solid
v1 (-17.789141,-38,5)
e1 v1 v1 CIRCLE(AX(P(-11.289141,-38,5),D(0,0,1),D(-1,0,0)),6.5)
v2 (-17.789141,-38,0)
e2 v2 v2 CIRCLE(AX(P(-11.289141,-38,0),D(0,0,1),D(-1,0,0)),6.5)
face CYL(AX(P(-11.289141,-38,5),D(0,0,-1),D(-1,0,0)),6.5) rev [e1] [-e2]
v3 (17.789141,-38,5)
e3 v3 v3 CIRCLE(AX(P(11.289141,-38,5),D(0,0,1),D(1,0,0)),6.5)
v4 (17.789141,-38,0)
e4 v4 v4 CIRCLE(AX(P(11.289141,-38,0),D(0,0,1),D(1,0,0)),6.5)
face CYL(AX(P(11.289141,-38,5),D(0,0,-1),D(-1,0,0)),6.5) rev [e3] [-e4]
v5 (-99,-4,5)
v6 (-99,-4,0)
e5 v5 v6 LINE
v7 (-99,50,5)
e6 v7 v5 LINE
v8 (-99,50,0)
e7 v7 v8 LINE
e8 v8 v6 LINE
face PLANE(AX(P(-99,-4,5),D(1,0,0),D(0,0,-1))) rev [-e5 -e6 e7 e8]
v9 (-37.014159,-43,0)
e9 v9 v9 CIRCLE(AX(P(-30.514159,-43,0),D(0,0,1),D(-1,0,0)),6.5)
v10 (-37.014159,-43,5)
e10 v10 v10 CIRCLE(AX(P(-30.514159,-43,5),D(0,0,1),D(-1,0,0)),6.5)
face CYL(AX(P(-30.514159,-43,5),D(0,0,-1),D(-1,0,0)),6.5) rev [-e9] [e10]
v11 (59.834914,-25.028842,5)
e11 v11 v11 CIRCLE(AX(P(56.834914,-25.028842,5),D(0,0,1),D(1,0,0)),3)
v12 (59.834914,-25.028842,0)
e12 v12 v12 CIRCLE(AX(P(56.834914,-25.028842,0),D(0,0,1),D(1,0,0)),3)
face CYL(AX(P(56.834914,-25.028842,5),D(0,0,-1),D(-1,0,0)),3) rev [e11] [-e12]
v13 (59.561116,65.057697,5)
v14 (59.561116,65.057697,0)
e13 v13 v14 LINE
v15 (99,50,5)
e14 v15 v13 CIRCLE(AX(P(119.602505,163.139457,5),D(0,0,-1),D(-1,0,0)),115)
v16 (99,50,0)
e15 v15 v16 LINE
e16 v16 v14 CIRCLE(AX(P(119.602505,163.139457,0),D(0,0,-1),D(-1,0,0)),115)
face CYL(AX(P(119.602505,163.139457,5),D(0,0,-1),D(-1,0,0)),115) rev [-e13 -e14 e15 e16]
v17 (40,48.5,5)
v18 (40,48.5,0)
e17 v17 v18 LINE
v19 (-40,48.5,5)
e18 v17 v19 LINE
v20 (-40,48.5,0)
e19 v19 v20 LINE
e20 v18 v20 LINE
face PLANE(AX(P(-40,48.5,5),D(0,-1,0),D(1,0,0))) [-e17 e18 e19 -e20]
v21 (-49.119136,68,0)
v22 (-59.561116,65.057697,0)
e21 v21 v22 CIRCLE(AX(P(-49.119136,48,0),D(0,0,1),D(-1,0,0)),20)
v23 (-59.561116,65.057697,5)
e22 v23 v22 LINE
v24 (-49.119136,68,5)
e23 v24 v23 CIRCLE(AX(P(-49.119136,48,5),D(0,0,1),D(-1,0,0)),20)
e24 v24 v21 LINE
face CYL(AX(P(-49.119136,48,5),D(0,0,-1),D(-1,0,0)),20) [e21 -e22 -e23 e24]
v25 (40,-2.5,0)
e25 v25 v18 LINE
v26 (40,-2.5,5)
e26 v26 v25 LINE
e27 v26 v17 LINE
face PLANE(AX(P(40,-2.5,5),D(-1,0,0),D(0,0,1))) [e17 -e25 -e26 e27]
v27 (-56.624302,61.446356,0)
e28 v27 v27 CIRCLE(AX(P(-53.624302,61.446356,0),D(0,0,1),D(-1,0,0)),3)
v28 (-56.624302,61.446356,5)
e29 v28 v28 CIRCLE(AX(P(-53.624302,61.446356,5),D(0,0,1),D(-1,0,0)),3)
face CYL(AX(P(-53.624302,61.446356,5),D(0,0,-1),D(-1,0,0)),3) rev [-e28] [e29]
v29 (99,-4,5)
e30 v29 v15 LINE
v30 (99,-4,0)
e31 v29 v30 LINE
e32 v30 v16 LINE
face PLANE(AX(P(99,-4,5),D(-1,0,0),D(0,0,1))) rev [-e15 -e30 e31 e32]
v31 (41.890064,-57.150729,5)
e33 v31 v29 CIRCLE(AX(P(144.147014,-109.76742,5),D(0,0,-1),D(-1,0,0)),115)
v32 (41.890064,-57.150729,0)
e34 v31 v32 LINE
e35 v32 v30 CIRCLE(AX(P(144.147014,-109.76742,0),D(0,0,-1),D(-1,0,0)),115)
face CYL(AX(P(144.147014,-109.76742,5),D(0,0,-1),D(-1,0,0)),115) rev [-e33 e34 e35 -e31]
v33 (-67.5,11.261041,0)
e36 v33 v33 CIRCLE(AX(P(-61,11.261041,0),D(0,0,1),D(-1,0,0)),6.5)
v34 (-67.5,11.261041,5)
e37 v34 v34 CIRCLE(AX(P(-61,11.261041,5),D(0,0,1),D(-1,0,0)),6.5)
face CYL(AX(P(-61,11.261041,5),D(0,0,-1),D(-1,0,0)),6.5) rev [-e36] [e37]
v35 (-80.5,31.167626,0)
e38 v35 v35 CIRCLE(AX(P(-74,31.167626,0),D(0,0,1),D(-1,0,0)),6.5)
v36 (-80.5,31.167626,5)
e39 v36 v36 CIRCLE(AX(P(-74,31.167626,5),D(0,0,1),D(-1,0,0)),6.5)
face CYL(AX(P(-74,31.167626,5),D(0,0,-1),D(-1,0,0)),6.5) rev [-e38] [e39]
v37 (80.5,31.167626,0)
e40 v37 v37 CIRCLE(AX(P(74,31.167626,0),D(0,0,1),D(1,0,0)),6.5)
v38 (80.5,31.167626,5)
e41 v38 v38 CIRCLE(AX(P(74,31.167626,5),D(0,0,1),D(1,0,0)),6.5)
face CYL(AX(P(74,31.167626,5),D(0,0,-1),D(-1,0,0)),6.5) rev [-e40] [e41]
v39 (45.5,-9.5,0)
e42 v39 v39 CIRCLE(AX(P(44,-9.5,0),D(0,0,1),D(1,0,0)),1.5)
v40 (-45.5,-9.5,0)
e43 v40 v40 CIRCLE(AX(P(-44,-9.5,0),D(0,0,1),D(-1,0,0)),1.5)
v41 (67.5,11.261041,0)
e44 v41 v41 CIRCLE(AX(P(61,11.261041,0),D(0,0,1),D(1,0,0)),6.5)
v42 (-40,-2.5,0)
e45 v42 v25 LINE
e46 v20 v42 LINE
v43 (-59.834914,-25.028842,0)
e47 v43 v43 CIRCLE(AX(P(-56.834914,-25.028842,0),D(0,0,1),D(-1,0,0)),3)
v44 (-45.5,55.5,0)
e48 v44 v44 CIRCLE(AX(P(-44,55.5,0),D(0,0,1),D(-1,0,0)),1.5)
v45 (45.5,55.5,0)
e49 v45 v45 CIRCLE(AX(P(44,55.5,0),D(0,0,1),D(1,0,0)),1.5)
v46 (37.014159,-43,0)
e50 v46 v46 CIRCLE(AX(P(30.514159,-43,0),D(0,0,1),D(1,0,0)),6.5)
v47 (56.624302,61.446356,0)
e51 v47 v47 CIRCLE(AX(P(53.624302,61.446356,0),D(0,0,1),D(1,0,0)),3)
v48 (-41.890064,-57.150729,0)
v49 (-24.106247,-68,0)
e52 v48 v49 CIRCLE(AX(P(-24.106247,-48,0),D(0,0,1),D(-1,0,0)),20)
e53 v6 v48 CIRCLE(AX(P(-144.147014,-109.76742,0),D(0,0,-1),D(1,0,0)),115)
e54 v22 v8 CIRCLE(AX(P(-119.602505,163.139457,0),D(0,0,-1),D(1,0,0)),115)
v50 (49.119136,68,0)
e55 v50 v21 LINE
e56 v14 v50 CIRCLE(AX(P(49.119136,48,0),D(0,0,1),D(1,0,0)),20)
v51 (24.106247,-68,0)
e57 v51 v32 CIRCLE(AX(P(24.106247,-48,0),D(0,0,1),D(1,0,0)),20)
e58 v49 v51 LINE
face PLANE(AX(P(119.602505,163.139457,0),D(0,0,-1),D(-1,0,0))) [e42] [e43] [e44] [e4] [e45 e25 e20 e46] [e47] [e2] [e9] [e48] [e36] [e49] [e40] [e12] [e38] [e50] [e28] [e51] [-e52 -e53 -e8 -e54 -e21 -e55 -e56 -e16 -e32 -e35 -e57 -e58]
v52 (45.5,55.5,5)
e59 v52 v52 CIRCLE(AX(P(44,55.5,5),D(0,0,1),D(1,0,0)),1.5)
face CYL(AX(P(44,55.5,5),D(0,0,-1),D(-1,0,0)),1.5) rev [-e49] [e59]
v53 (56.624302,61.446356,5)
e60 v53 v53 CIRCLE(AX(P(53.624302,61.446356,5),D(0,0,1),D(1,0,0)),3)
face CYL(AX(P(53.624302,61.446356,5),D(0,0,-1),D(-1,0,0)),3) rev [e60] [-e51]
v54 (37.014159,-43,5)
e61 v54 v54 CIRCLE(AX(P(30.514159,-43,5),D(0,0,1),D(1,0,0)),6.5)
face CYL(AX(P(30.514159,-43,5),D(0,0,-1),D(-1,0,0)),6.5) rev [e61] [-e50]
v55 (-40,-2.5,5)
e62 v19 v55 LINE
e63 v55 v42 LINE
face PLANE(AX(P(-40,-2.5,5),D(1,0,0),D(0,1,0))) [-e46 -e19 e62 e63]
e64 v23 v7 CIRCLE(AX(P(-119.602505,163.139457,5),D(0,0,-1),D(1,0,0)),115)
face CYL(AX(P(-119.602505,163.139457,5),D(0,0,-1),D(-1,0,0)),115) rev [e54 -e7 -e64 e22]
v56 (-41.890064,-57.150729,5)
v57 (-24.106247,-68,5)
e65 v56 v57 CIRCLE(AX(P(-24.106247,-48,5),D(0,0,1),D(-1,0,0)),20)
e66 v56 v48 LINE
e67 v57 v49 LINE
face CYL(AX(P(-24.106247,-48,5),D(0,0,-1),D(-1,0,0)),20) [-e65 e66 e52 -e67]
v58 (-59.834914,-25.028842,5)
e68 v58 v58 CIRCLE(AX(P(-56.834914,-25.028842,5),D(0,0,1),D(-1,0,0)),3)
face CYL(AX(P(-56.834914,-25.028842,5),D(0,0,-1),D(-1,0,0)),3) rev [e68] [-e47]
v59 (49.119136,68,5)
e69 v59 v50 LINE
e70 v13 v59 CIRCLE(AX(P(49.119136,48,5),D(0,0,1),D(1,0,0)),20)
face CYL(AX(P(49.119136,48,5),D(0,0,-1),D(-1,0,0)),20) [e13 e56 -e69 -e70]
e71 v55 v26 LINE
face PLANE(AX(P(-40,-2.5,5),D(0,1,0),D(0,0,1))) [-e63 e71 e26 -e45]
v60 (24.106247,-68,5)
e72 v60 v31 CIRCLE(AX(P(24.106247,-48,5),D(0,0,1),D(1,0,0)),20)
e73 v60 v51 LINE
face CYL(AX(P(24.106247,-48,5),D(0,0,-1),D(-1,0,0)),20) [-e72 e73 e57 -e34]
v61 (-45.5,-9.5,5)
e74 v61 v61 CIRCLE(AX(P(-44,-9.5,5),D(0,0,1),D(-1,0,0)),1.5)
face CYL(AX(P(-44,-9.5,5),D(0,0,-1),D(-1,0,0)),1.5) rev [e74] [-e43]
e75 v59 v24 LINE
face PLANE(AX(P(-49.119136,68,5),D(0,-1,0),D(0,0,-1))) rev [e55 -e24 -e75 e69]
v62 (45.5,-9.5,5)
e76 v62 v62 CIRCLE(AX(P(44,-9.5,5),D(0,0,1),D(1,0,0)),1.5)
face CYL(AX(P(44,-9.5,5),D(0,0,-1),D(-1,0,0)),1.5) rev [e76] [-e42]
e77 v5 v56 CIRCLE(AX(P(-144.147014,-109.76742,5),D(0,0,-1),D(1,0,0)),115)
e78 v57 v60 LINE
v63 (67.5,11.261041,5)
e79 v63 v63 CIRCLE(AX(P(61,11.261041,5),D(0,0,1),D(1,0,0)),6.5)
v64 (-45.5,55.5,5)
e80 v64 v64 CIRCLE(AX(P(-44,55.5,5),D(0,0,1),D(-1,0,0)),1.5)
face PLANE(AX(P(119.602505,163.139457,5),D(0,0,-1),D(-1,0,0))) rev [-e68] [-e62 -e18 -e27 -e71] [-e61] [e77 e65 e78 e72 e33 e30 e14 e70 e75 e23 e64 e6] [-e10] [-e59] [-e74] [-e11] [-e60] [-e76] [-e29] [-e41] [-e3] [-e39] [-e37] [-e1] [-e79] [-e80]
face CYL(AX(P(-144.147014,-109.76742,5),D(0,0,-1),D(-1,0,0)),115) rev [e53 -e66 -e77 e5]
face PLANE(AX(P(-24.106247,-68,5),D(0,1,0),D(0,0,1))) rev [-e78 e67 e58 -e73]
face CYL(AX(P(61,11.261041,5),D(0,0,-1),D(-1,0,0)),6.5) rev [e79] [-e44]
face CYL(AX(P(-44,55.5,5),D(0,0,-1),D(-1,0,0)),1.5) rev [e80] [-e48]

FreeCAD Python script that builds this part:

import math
import FreeCAD as App
import Part
import Sketcher


def add_polygon(sketch, points):
    """Adds a closed chain of lines whose ends are joined by coincident constraints."""
    first, n = sketch.GeometryCount, len(points)
    for a, b in zip(points, points[1:] + points[:1]):
        sketch.addGeometry(Part.LineSegment(App.Vector(*a, 0), App.Vector(*b, 0)), False)
    for i in range(n):
        sketch.addConstraint(Sketcher.Constraint("Coincident", first + i, 2, first + (i + 1) % n, 1))

doc = App.newDocument("Part")
body = doc.addObject("PartDesign::Body", "Body")

# Sketch on XY plane
sketch1 = doc.addObject("Sketcher::SketchObject", "Sketch")
body.addObject(sketch1)
sketch1.AttachmentSupport = (doc.XY_Plane, [""])
sketch1.MapMode = "FlatFace"
sketch1.addGeometry(Part.LineSegment(App.Vector(49.1, 68, 0), App.Vector(-49.1, 68, 0)), False)  # 0
sketch1.addGeometry(Part.ArcOfCircle(Part.Circle(App.Vector(-49.1, 48, 0), App.Vector(0, 0, 1), 20), math.radians(90), math.radians(121)), False)  # 1
sketch1.addGeometry(Part.ArcOfCircle(Part.Circle(App.Vector(-119.6, 163.1, 0), App.Vector(0, 0, 1), 115), math.radians(-80), math.radians(-59)), False)  # 2
sketch1.addGeometry(Part.LineSegment(App.Vector(-99, 50, 0), App.Vector(-99, -4, 0)), False)  # 3
sketch1.addGeometry(Part.ArcOfCircle(Part.Circle(App.Vector(-144.1, -109.8, 0), App.Vector(0, 0, 1), 115), math.radians(27), math.radians(67)), False)  # 4
sketch1.addGeometry(Part.ArcOfCircle(Part.Circle(App.Vector(-24.1, -48, 0), App.Vector(0, 0, 1), 20), math.radians(-153), math.radians(-90)), False)  # 5
sketch1.addGeometry(Part.LineSegment(App.Vector(-24.1, -68, 0), App.Vector(24.1, -68, 0)), False)  # 6
sketch1.addGeometry(Part.ArcOfCircle(Part.Circle(App.Vector(24.1, -48, 0), App.Vector(0, 0, 1), 20), math.radians(-90), math.radians(-27)), False)  # 7
sketch1.addGeometry(Part.ArcOfCircle(Part.Circle(App.Vector(144.1, -109.8, 0), App.Vector(0, 0, 1), 115), math.radians(113), math.radians(153)), False)  # 8
sketch1.addGeometry(Part.LineSegment(App.Vector(99, -4, 0), App.Vector(99, 50, 0)), False)  # 9
sketch1.addGeometry(Part.ArcOfCircle(Part.Circle(App.Vector(119.6, 163.1, 0), App.Vector(0, 0, 1), 115), math.radians(-121), math.radians(-100)), False)  # 10
sketch1.addGeometry(Part.ArcOfCircle(Part.Circle(App.Vector(49.1, 48, 0), App.Vector(0, 0, 1), 20), math.radians(59), math.radians(90)), False)  # 11
sketch1.addGeometry(Part.Circle(App.Vector(56.8, -25, 0), App.Vector(0, 0, 1), 3), False)  # 12
sketch1.addGeometry(Part.Circle(App.Vector(30.5, -43, 0), App.Vector(0, 0, 1), 6.5), False)  # 13
sketch1.addGeometry(Part.Circle(App.Vector(11.3, -38, 0), App.Vector(0, 0, 1), 6.5), False)  # 14
sketch1.addGeometry(Part.Circle(App.Vector(44, -9.5, 0), App.Vector(0, 0, 1), 1.5), False)  # 15
sketch1.addGeometry(Part.Circle(App.Vector(-11.3, -38, 0), App.Vector(0, 0, 1), 6.5), False)  # 16
sketch1.addGeometry(Part.Circle(App.Vector(-30.5, -43, 0), App.Vector(0, 0, 1), 6.5), False)  # 17
sketch1.addGeometry(Part.Circle(App.Vector(-56.8, -25, 0), App.Vector(0, 0, 1), 3), False)  # 18
sketch1.addGeometry(Part.Circle(App.Vector(-44, -9.5, 0), App.Vector(0, 0, 1), 1.5), False)  # 19
sketch1.addGeometry(Part.Circle(App.Vector(61, 11.3, 0), App.Vector(0, 0, 1), 6.5), False)  # 20
sketch1.addGeometry(Part.Circle(App.Vector(74, 31.2, 0), App.Vector(0, 0, 1), 6.5), False)  # 21
add_polygon(sketch1, [(-40, -2.5), (-40, 48.5), (40, 48.5), (40, -2.5)])  # lines 22-25
sketch1.addGeometry(Part.Circle(App.Vector(44, 55.5, 0), App.Vector(0, 0, 1), 1.5), False)  # 26
sketch1.addGeometry(Part.Circle(App.Vector(53.6, 61.4, 0), App.Vector(0, 0, 1), 3), False)  # 27
sketch1.addGeometry(Part.Circle(App.Vector(-61, 11.3, 0), App.Vector(0, 0, 1), 6.5), False)  # 28
sketch1.addGeometry(Part.Circle(App.Vector(-74, 31.2, 0), App.Vector(0, 0, 1), 6.5), False)  # 29
sketch1.addGeometry(Part.Circle(App.Vector(-44, 55.5, 0), App.Vector(0, 0, 1), 1.5), False)  # 30
sketch1.addGeometry(Part.Circle(App.Vector(-53.6, 61.4, 0), App.Vector(0, 0, 1), 3), False)  # 31
sketch1.addConstraint([
    Sketcher.Constraint("Tangent", 0, 2, 1, 1),
    Sketcher.Constraint("Tangent", 1, 2, 2, 2),
    Sketcher.Constraint("Coincident", 2, 1, 3, 1),
    Sketcher.Constraint("Coincident", 3, 2, 4, 2),
    Sketcher.Constraint("Tangent", 4, 1, 5, 1),
    Sketcher.Constraint("Tangent", 5, 2, 6, 1),
    Sketcher.Constraint("Tangent", 6, 2, 7, 1),
    Sketcher.Constraint("Tangent", 7, 2, 8, 2),
    Sketcher.Constraint("Coincident", 8, 1, 9, 1),
    Sketcher.Constraint("Coincident", 9, 2, 10, 2),
    Sketcher.Constraint("Tangent", 10, 1, 11, 1),
    Sketcher.Constraint("Tangent", 11, 2, 0, 1),
    Sketcher.Constraint("Horizontal", 0),
    Sketcher.Constraint("Vertical", 3),
    Sketcher.Constraint("Horizontal", 6),
    Sketcher.Constraint("Vertical", 9),
    Sketcher.Constraint("Vertical", 22),
    Sketcher.Constraint("Horizontal", 23),
    Sketcher.Constraint("Vertical", 24),
    Sketcher.Constraint("Horizontal", 25),
    Sketcher.Constraint("Equal", 2, 4),
    Sketcher.Constraint("Equal", 1, 5),
    Sketcher.Constraint("Equal", 5, 7),
    Sketcher.Constraint("Equal", 4, 8),
    Sketcher.Constraint("Equal", 8, 10),
    Sketcher.Constraint("Equal", 7, 11),
    Sketcher.Constraint("Equal", 13, 14),
    Sketcher.Constraint("Equal", 14, 16),
    Sketcher.Constraint("Equal", 16, 17),
    Sketcher.Constraint("Equal", 12, 18),
    Sketcher.Constraint("Equal", 15, 19),
    Sketcher.Constraint("Equal", 17, 20),
    Sketcher.Constraint("Equal", 20, 21),
    Sketcher.Constraint("Equal", 19, 26),
    Sketcher.Constraint("Equal", 18, 27),
    Sketcher.Constraint("Equal", 21, 28),
    Sketcher.Constraint("Equal", 28, 29),
    Sketcher.Constraint("Equal", 26, 30),
    Sketcher.Constraint("Equal", 27, 31),
    Sketcher.Constraint("Symmetric", 4, 3, 8, 3, -2),
    Sketcher.Constraint("Symmetric", 2, 3, 10, 3, -2),
    Sketcher.Constraint("Symmetric", 14, 3, 16, 3, -2),
    Sketcher.Constraint("Symmetric", 13, 3, 17, 3, -2),
    Sketcher.Constraint("Symmetric", 12, 3, 18, 3, -2),
    Sketcher.Constraint("Symmetric", 15, 3, 19, 3, -2),
    Sketcher.Constraint("Symmetric", 20, 3, 28, 3, -2),
    Sketcher.Constraint("Symmetric", 21, 3, 29, 3, -2),
    Sketcher.Constraint("Symmetric", 26, 3, 30, 3, -2),
    Sketcher.Constraint("Symmetric", 27, 3, 31, 3, -2),
    Sketcher.Constraint("Horizontal", 3, 2, 8, 1),
    Sketcher.Constraint("Vertical", 15, 3, 26, 3),
    Sketcher.Constraint("Diameter", 12, 6.0),
    Sketcher.Constraint("Diameter", 13, 13.0),
    Sketcher.Constraint("Diameter", 15, 3.0),
    Sketcher.Constraint("Radius", 1, 20.0),
    Sketcher.Constraint("Radius", 2, 115.0),
    Sketcher.Constraint("DistanceX", 23, 1, 23, 2, 80.0),
    Sketcher.Constraint("DistanceY", 3, 2, 3, 1, 54.0),
    Sketcher.Constraint("DistanceY", 22, 1, 22, 2, 51.0),
    Sketcher.Constraint("DistanceY", -1, 1, 1, 3, 48.0),
    Sketcher.Constraint("DistanceY", 5, 3, -1, 1, 48.0),
    Sketcher.Constraint("DistanceY", 13, 3, -1, 1, 43.0),
    Sketcher.Constraint("DistanceY", 14, 3, -1, 1, 38.0),
    Sketcher.Constraint("DistanceX", -1, 1, 15, 3, 44.0),
    Sketcher.Constraint("DistanceX", -1, 1, 20, 3, 61.0),
    Sketcher.Constraint("DistanceX", -1, 1, 21, 3, 74.0),
    Sketcher.Constraint("DistanceX", 2, 1, -1, 1, 99.0),
    Sketcher.Constraint("DistanceY", -1, 1, 2, 1, 50.0),
    Sketcher.Constraint("DistanceX", 22, 2, -1, 1, 40.0),
    Sketcher.Constraint("DistanceY", 15, 3, 26, 3, 65.0),
    Sketcher.Constraint("DistanceY", 22, 2, 30, 3, 7.0),
    Sketcher.Constraint("DistanceY", 15, 3, -1, 1, 9.5),
    Sketcher.Constraint("DistanceX", 0, 2, 0, 1, 98.238271),
    Sketcher.Constraint("DistanceX", -1, 1, 27, 3, 53.624302),
    Sketcher.Constraint("DistanceX", 12, 3, 8, 3, 87.3121),
    Sketcher.Constraint("DistanceX", 16, 3, 13, 3, 41.803299),
    Sketcher.Constraint("DistanceX", 6, 1, 6, 2, 48.212493),
    Sketcher.Constraint("DistanceY", 12, 3, -1, 1, 25.028842),
    Sketcher.Constraint("DistanceX", -1, 1, 13, 3, 30.514159),
    Sketcher.Constraint("DistanceY", -1, 1, 20, 3, 11.261041),
    Sketcher.Constraint("DistanceY", 21, 3, 27, 3, 30.27873),
    Sketcher.Constraint("DistanceY", 31, 3, 1, 2, 3.611342),
])
pad1 = doc.addObject("PartDesign::Pad", "Pad")
body.addObject(pad1)
pad1.Profile = sketch1
pad1.Length = 5

doc.recompute()
